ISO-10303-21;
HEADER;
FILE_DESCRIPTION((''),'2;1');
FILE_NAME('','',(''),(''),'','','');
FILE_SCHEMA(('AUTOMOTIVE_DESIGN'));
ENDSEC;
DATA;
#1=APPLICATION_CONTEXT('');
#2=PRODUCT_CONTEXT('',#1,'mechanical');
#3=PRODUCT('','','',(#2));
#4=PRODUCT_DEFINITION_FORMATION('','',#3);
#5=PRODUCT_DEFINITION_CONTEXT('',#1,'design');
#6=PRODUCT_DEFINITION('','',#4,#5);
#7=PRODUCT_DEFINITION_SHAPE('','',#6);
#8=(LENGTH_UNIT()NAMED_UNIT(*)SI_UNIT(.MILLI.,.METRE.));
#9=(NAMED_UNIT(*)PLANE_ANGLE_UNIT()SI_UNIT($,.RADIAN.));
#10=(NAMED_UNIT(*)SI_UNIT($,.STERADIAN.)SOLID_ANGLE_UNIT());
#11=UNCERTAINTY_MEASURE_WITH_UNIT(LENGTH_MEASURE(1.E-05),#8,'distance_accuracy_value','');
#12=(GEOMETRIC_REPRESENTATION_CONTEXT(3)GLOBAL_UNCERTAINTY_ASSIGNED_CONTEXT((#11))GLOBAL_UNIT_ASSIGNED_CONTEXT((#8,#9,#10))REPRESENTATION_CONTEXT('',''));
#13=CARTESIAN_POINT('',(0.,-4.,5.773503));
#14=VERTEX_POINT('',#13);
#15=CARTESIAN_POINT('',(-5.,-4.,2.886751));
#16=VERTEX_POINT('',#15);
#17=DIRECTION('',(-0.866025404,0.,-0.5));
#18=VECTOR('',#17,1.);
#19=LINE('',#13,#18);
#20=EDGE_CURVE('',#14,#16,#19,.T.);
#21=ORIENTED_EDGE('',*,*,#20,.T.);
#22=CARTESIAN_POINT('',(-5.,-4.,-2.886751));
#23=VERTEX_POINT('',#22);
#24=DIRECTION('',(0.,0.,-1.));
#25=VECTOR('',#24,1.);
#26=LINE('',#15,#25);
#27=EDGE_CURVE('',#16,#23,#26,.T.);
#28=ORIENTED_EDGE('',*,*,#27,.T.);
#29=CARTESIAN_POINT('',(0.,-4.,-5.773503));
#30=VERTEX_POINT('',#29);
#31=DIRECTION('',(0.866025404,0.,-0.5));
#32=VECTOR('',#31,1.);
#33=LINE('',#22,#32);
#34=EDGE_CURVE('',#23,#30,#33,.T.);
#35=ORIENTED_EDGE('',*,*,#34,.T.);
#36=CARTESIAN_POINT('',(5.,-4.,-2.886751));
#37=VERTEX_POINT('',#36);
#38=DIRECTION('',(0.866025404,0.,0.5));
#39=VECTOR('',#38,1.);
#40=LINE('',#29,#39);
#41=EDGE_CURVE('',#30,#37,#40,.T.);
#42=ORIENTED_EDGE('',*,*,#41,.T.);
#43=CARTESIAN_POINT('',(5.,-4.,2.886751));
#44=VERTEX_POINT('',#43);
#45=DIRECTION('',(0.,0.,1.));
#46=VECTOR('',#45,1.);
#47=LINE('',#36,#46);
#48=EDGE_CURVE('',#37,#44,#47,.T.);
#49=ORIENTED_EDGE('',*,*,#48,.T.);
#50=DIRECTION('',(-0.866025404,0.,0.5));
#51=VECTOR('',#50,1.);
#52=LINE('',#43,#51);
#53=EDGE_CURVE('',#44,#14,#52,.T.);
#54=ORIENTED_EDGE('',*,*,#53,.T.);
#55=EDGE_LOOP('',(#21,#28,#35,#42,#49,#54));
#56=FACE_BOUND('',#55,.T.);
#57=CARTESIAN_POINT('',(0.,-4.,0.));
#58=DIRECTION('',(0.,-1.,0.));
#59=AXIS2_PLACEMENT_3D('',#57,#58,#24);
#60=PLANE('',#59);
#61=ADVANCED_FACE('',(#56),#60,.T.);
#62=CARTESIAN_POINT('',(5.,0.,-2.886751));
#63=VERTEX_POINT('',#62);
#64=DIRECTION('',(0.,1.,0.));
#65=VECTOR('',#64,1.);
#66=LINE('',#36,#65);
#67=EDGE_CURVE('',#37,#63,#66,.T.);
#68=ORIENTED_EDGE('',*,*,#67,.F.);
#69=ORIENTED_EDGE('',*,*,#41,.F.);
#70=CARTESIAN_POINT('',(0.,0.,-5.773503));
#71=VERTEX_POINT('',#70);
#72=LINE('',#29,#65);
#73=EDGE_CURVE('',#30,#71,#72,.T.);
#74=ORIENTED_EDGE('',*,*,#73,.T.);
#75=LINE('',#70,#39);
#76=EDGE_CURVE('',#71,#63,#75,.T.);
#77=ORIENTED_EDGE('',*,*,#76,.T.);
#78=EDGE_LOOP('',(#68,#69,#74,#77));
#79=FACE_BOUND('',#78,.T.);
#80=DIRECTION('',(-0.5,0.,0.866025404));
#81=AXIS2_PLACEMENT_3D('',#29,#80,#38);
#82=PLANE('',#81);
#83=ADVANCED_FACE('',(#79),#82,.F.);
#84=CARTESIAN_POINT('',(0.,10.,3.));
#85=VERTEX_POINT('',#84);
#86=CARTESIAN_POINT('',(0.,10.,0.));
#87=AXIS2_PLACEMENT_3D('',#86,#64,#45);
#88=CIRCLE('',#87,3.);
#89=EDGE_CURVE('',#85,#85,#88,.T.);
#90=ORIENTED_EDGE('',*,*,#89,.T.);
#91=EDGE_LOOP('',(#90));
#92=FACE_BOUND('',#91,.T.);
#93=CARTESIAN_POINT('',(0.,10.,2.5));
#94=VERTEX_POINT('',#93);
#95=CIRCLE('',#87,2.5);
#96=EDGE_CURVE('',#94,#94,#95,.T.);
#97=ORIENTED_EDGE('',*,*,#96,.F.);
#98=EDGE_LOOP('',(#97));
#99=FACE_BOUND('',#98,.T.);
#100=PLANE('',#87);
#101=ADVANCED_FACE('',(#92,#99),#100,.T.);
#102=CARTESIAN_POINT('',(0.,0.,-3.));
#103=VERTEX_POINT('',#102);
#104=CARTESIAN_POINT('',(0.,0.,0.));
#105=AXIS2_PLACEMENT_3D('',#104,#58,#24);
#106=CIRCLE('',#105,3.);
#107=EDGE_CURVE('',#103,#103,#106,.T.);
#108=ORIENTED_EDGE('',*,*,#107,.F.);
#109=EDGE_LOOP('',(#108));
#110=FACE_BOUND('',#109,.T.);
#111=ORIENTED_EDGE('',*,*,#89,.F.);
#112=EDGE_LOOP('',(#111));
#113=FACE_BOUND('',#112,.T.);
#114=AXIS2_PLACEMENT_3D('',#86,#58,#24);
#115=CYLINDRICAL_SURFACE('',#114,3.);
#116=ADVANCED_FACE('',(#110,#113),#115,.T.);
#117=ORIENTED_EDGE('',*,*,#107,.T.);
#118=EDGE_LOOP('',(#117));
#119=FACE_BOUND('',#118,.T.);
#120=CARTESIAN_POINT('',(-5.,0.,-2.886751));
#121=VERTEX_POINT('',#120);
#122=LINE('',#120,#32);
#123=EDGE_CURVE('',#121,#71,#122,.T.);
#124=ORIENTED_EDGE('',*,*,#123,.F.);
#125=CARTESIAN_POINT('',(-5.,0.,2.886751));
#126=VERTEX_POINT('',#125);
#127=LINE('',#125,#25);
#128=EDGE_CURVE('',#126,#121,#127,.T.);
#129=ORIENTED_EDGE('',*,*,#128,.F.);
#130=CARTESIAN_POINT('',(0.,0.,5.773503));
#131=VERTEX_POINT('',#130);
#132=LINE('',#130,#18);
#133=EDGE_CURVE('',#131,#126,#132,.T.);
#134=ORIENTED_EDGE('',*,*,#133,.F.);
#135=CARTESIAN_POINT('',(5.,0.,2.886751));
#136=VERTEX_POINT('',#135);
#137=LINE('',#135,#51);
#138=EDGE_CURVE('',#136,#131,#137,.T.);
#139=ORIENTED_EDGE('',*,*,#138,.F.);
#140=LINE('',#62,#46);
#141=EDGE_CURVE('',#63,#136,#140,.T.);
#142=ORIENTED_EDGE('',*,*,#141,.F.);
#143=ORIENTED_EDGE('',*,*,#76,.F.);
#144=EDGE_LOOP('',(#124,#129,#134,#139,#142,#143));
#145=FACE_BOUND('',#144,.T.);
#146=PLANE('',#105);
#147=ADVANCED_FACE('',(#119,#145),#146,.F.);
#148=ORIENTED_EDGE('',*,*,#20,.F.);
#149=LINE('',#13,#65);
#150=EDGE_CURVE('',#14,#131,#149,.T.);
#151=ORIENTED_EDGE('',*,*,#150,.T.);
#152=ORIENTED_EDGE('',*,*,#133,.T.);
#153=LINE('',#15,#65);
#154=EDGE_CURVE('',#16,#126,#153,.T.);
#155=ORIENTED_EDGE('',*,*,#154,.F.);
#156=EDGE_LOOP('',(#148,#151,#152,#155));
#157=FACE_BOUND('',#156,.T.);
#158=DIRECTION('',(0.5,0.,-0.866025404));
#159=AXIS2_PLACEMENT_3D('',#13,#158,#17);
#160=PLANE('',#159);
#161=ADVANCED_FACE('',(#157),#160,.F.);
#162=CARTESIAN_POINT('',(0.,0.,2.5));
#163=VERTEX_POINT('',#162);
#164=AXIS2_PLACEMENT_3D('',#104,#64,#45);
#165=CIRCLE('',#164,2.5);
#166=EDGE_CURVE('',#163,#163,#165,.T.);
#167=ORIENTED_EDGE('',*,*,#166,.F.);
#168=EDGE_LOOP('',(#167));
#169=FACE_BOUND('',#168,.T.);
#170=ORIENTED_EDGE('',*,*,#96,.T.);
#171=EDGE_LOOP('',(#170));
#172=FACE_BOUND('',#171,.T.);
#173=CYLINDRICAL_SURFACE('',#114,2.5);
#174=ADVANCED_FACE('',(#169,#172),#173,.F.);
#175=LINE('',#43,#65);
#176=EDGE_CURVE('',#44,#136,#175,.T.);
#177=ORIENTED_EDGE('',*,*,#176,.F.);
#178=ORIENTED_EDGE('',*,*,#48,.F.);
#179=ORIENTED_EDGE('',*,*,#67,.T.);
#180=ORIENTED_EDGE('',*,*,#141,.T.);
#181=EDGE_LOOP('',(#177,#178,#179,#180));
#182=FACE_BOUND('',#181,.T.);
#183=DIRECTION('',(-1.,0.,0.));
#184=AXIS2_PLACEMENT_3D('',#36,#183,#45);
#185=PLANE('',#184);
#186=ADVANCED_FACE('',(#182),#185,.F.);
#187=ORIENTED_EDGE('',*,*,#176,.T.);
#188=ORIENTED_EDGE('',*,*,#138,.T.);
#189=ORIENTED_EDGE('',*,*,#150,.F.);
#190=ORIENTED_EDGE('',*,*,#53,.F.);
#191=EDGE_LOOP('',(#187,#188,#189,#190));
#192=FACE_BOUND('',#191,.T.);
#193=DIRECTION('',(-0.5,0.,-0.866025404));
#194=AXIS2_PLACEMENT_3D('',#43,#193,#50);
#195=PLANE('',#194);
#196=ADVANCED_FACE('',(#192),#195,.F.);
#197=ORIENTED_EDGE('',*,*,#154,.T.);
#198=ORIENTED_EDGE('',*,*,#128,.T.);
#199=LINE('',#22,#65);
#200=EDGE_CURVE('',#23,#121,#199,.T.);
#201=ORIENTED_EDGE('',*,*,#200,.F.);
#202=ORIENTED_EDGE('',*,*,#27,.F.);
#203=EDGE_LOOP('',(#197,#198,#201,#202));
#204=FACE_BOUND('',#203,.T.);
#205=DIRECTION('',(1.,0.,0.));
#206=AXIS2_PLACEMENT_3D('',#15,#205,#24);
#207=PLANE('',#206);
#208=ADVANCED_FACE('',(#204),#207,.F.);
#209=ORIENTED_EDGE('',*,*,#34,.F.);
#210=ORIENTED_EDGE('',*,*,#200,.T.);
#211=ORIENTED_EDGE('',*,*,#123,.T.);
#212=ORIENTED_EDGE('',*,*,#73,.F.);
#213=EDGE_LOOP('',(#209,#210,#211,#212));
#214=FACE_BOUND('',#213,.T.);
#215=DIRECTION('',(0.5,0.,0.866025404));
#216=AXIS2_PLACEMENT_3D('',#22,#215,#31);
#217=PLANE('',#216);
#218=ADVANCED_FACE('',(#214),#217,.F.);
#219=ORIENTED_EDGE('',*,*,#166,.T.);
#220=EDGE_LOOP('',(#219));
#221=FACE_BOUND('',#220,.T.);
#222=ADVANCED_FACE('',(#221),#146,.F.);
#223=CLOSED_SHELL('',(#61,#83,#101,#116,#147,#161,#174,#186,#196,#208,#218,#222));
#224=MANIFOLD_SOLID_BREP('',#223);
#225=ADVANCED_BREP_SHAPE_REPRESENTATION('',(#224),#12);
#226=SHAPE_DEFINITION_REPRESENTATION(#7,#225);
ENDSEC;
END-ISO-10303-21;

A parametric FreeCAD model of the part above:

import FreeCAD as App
import Part
import Sketcher

V = App.Vector
Q = App.Units.Quantity


def add_polygon(sketch, points):
    """Adds a closed chain of lines whose ends are joined by coincident constraints."""
    first, n = sketch.GeometryCount, len(points)
    for a, b in zip(points, points[1:] + points[:1]):
        sketch.addGeometry(Part.LineSegment(App.Vector(*a, 0), App.Vector(*b, 0)), False)
    for i in range(n):
        sketch.addConstraint(Sketcher.Constraint("Coincident", first + i, 2, first + (i + 1) % n, 1))

doc = App.newDocument("Part")
body = doc.addObject("PartDesign::Body", "Body")

sketch1 = doc.addObject("Sketcher::SketchObject", "Sketch")
body.addObject(sketch1)
sketch1.AttachmentSupport = (doc.XZ_Plane, [""])
sketch1.MapMode = "FlatFace"
sketch1.addGeometry(Part.Circle(V(0, 0, 0), V(0, 0, 1), 3), False)
sketch1.addGeometry(Part.Circle(V(0, 0, 0), V(0, 0, 1), 2.5), False)
sketch1.addConstraint(Sketcher.Constraint("Coincident", 0, 3, -1, 1))
sketch1.addConstraint(Sketcher.Constraint("Coincident", 1, 3, -1, 1))
sketch1.addConstraint(Sketcher.Constraint("Diameter", 0, Q("6 mm")))
sketch1.addConstraint(Sketcher.Constraint("Diameter", 1, Q("5 mm")))
pad1 = doc.addObject("PartDesign::Pad", "Pad")
body.addObject(pad1)
pad1.Profile = sketch1
pad1.Length = 10
pad1.Reversed = True

sketch2 = doc.addObject("Sketcher::SketchObject", "Sketch001")
body.addObject(sketch2)
sketch2.AttachmentSupport = (doc.XZ_Plane, [""])
sketch2.MapMode = "FlatFace"
add_polygon(sketch2, [(0, 6), (-5, 3), (-5, -3), (0, -6), (5, -3), (5, 3)])
sketch2.addConstraint(Sketcher.Constraint("Vertical", 1))
sketch2.addConstraint(Sketcher.Constraint("Vertical", 4))
sketch2.addConstraint(Sketcher.Constraint("Symmetric", 0, 2, 3, 2, -1, 1))
sketch2.addConstraint(Sketcher.Constraint("Symmetric", 2, 2, 5, 2, -1, 1))
sketch2.addConstraint(Sketcher.Constraint("PointOnObject", 2, 2, -2))
sketch2.addConstraint(Sketcher.Constraint("Parallel", 2, 5))
sketch2.addConstraint(Sketcher.Constraint("Horizontal", 1, 2, 3, 2))
sketch2.addConstraint(Sketcher.Constraint("Angle", 0, Q("-150 deg")))
sketch2.addConstraint(Sketcher.Constraint("DistanceX", 0, 2, -1, 1, Q("5 mm")))
sketch2.addConstraint(Sketcher.Constraint("DistanceY", 1, 2, 1, 1, Q("5.773503 mm")))
pad2 = doc.addObject("PartDesign::Pad", "Pad001")
body.addObject(pad2)
pad2.Profile = sketch2
pad2.Length = 4

doc.recompute()
